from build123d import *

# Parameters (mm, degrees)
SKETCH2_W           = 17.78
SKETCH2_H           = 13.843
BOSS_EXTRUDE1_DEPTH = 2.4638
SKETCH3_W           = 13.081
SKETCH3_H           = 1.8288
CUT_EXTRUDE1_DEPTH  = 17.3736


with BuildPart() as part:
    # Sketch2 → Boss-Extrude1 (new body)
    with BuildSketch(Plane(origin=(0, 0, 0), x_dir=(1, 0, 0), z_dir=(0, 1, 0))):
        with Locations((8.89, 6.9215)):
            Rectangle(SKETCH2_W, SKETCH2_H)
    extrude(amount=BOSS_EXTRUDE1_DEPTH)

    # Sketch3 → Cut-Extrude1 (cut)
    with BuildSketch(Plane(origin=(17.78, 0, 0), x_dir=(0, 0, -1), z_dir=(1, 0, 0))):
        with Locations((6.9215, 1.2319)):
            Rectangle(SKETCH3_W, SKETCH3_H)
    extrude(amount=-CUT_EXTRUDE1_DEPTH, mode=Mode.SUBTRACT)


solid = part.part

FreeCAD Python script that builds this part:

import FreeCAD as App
import Part
import Sketcher

V = App.Vector
Q = App.Units.Quantity


def add_polygon(sketch, points):
    """Adds a closed chain of lines whose ends are joined by coincident constraints."""
    first, n = sketch.GeometryCount, len(points)
    for a, b in zip(points, points[1:] + points[:1]):
        sketch.addGeometry(Part.LineSegment(App.Vector(*a, 0), App.Vector(*b, 0)), False)
    for i in range(n):
        sketch.addConstraint(Sketcher.Constraint("Coincident", first + i, 2, first + (i + 1) % n, 1))

doc = App.newDocument("Part")
params = doc.addObject("Spreadsheet::Sheet", "Params")
for row, (alias, value) in enumerate([
    ("sketch1_width", "0.7 in"),
    ("sketch1_height", "0.545 in"),
    ("pad1_length", "0.097 in"),
    ("sketch2_width", "0.072 in"),
    ("sketch2_height", "0.515 in"),
    ("pocket1_length", "0.684 in"),
], start=1):
    params.set(f"A{row}", alias)
    params.set(f"B{row}", "=" + value)
    params.setAlias(f"B{row}", alias)

body = doc.addObject("PartDesign::Body", "Body")

sketch1 = body.newObject("Sketcher::SketchObject", "Sketch")
sketch1.AttachmentSupport = (doc.getObject("XZ_Plane"), [""])
sketch1.MapMode = "FlatFace"
add_polygon(sketch1, [(0, -14), (0, 0), (18, 0), (18, -14)])
sketch1.addConstraint(Sketcher.Constraint("Vertical", 0))
sketch1.addConstraint(Sketcher.Constraint("Horizontal", 1))
sketch1.addConstraint(Sketcher.Constraint("Vertical", 2))
sketch1.addConstraint(Sketcher.Constraint("Horizontal", 3))
sketch1.addConstraint(Sketcher.Constraint("Coincident", 0, 2, -1, 1))
sketch1.addConstraint(Sketcher.Constraint("DistanceX", 1, 1, 1, 2, Q("0.7 in")))
sketch1.addConstraint(Sketcher.Constraint("DistanceY", 0, 1, 0, 2, Q("0.545 in")))
sketch1.setExpression("Constraints[9]", "Params.sketch1_width")
sketch1.setExpression("Constraints[10]", "Params.sketch1_height")
pad1 = body.newObject("PartDesign::Pad", "Pad")
pad1.Profile = sketch1
pad1.setExpression("Length", "Params.pad1_length")
pad1.Reversed = True

sketch2 = body.newObject("Sketcher::SketchObject", "Sketch001")
sketch2.AttachmentSupport = (doc.getObject("YZ_Plane"), [""])
sketch2.MapMode = "FlatFace"
sketch2.AttachmentOffset = App.Placement(V(0, 0, 0.7 * 25.4), App.Rotation())
add_polygon(sketch2, [(2.1, -0.4), (0.3, -0.4), (0.3, -13.5), (2.1, -13.5)])
sketch2.addConstraint(Sketcher.Constraint("Horizontal", 0))
sketch2.addConstraint(Sketcher.Constraint("Vertical", 1))
sketch2.addConstraint(Sketcher.Constraint("Horizontal", 2))
sketch2.addConstraint(Sketcher.Constraint("Vertical", 3))
sketch2.addConstraint(Sketcher.Constraint("DistanceX", 0, 2, 0, 1, Q("0.072 in")))
sketch2.addConstraint(Sketcher.Constraint("DistanceY", 1, 2, 1, 1, Q("0.515 in")))
sketch2.addConstraint(Sketcher.Constraint("DistanceY", 1, 2, -1, 1, Q("0.53 in")))
sketch2.addConstraint(Sketcher.Constraint("DistanceX", -1, 1, 0, 2, Q("0.0125 in")))
sketch2.setExpression("Constraints[8]", "Params.sketch2_width")
sketch2.setExpression("Constraints[9]", "Params.sketch2_height")
pocket1 = body.newObject("PartDesign::Pocket", "Pocket")
pocket1.Profile = sketch2
pocket1.setExpression("Length", "Params.pocket1_length")

doc.recompute()
